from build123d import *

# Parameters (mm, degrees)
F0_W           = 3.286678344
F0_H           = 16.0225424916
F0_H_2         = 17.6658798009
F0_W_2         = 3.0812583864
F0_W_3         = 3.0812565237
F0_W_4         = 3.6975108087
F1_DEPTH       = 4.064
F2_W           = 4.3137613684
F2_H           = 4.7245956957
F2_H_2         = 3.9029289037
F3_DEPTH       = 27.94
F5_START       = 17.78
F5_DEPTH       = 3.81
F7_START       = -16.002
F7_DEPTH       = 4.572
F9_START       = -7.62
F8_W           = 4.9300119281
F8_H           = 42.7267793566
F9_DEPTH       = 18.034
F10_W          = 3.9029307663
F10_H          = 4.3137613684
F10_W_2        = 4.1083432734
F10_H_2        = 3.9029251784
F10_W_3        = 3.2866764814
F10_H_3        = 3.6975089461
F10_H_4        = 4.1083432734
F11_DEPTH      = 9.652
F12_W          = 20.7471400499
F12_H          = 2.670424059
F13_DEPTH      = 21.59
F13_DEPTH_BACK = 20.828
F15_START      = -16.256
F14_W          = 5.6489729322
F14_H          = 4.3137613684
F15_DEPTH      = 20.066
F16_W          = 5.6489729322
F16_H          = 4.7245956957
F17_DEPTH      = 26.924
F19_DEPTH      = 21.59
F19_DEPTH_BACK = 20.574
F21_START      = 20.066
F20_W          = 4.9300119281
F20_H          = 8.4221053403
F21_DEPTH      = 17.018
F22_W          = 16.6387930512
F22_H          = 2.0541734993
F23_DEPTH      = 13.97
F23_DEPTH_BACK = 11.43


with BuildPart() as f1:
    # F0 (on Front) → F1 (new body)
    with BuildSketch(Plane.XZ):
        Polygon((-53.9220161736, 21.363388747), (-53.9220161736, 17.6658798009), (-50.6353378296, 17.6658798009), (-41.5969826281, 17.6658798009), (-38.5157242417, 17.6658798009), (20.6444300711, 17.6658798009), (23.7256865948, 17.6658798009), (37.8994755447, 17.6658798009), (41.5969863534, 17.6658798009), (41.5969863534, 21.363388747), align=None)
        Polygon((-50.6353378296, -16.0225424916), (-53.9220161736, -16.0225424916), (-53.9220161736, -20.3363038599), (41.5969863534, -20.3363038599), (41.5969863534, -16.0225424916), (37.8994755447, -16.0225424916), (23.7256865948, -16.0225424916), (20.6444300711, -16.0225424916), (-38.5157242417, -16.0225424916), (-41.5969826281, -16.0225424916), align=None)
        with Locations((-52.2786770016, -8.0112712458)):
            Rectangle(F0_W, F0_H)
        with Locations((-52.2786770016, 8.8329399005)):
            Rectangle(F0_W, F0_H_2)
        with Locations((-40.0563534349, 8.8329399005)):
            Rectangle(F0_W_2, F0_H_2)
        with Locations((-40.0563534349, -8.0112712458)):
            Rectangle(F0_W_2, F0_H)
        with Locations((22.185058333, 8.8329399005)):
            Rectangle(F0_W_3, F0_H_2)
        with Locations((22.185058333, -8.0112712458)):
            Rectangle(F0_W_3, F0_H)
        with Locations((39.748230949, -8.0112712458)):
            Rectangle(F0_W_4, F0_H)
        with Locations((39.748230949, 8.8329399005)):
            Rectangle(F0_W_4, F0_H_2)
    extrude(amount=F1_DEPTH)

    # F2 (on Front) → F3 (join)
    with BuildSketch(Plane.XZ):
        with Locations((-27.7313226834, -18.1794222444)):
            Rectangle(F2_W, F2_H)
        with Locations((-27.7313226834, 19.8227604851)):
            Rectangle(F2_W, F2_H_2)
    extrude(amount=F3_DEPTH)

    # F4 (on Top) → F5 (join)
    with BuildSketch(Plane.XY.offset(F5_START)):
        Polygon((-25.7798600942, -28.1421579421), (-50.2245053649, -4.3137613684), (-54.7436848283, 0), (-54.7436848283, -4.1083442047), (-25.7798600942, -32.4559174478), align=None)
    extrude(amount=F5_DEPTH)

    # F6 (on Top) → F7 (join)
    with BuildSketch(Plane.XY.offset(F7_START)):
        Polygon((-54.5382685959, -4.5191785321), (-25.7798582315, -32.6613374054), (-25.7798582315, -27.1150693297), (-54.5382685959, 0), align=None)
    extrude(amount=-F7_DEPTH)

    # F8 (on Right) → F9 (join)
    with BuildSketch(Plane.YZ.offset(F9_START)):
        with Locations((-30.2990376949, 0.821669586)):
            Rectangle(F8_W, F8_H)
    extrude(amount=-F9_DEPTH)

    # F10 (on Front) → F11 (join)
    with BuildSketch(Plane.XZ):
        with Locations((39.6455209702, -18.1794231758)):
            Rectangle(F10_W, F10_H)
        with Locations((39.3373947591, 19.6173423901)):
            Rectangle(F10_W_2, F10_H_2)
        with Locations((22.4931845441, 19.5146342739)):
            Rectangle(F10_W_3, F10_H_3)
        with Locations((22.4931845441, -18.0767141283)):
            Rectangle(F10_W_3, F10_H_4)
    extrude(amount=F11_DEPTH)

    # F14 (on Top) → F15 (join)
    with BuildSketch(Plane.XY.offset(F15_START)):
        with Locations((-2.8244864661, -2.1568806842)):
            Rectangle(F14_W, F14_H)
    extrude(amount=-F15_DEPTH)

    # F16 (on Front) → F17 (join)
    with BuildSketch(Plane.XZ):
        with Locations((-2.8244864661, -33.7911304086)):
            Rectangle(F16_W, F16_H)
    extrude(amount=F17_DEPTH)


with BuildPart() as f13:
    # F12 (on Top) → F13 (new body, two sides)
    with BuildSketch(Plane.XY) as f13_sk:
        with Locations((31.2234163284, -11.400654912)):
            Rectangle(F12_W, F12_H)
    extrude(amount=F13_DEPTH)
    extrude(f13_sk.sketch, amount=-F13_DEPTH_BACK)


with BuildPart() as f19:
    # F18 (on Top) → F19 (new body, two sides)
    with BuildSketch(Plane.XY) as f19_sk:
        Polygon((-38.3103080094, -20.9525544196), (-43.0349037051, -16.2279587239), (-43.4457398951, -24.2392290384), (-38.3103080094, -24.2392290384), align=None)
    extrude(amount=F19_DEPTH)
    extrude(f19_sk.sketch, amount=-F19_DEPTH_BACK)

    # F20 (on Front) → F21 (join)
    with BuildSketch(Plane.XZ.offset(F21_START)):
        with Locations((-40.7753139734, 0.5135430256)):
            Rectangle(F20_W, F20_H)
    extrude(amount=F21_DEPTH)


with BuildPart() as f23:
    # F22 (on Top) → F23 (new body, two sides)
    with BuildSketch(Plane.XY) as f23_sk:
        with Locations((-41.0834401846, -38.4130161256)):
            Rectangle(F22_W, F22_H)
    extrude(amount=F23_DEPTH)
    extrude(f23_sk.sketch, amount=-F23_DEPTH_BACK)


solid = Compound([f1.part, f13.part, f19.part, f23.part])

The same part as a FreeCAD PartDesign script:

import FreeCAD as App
import Part
import Sketcher
Q = App.Units.Quantity

doc = App.newDocument("Part")
body = doc.addObject("PartDesign::Body", "Body")

sketch1 = body.newObject("Sketcher::SketchObject", "Sketch")
sketch1.AttachmentSupport = (doc.getObject("XZ_Plane"), [""])
sketch1.MapMode = "FlatFace"
sketch1.addGeometry([
    Part.LineSegment(App.Vector(-53.9, 21.4, 0), App.Vector(-53.9, -20.3, 0)),
    Part.LineSegment(App.Vector(-53.9, -20.3, 0), App.Vector(41.6, -20.3, 0)),
    Part.LineSegment(App.Vector(41.6, -20.3, 0), App.Vector(41.6, -16, 0)),
    Part.LineSegment(App.Vector(41.6, -16, 0), App.Vector(41.6, 17.7, 0)),
    Part.LineSegment(App.Vector(41.6, 17.7, 0), App.Vector(41.6, 21.4, 0)),
    Part.LineSegment(App.Vector(41.6, 21.4, 0), App.Vector(-53.9, 21.4, 0)),
    Part.LineSegment(App.Vector(37.9, -16, 0), App.Vector(23.7, -16, 0)),
    Part.LineSegment(App.Vector(23.7, -16, 0), App.Vector(23.7, 17.7, 0)),
    Part.LineSegment(App.Vector(23.7, 17.7, 0), App.Vector(37.9, 17.7, 0)),
    Part.LineSegment(App.Vector(37.9, 17.7, 0), App.Vector(37.9, -16, 0)),
    Part.LineSegment(App.Vector(20.6, -16, 0), App.Vector(-38.5, -16, 0)),
    Part.LineSegment(App.Vector(-38.5, -16, 0), App.Vector(-38.5, 17.7, 0)),
    Part.LineSegment(App.Vector(-38.5, 17.7, 0), App.Vector(20.6, 17.7, 0)),
    Part.LineSegment(App.Vector(20.6, 17.7, 0), App.Vector(20.6, -16, 0)),
    Part.LineSegment(App.Vector(-41.6, -16, 0), App.Vector(-50.6, -16, 0)),
    Part.LineSegment(App.Vector(-50.6, -16, 0), App.Vector(-50.6, 17.7, 0)),
    Part.LineSegment(App.Vector(-50.6, 17.7, 0), App.Vector(-41.6, 17.7, 0)),
    Part.LineSegment(App.Vector(-41.6, 17.7, 0), App.Vector(-41.6, -16, 0)),
], False)
sketch1.addConstraint([
    Sketcher.Constraint("Coincident", 0, 2, 1, 1),
    Sketcher.Constraint("Coincident", 1, 2, 2, 1),
    Sketcher.Constraint("Coincident", 2, 2, 3, 1),
    Sketcher.Constraint("Coincident", 3, 2, 4, 1),
    Sketcher.Constraint("Coincident", 4, 2, 5, 1),
    Sketcher.Constraint("Coincident", 5, 2, 0, 1),
    Sketcher.Constraint("Coincident", 6, 2, 7, 1),
    Sketcher.Constraint("Coincident", 7, 2, 8, 1),
    Sketcher.Constraint("Coincident", 8, 2, 9, 1),
    Sketcher.Constraint("Coincident", 9, 2, 6, 1),
    Sketcher.Constraint("Coincident", 10, 2, 11, 1),
    Sketcher.Constraint("Coincident", 11, 2, 12, 1),
    Sketcher.Constraint("Coincident", 12, 2, 13, 1),
    Sketcher.Constraint("Coincident", 13, 2, 10, 1),
    Sketcher.Constraint("Coincident", 14, 2, 15, 1),
    Sketcher.Constraint("Coincident", 15, 2, 16, 1),
    Sketcher.Constraint("Coincident", 16, 2, 17, 1),
    Sketcher.Constraint("Coincident", 17, 2, 14, 1),
    Sketcher.Constraint("Vertical", 0),
    Sketcher.Constraint("Horizontal", 1),
    Sketcher.Constraint("Vertical", 2),
    Sketcher.Constraint("Vertical", 3),
    Sketcher.Constraint("Vertical", 4),
    Sketcher.Constraint("Horizontal", 5),
    Sketcher.Constraint("Horizontal", 6),
    Sketcher.Constraint("Vertical", 7),
    Sketcher.Constraint("Horizontal", 8),
    Sketcher.Constraint("Vertical", 9),
    Sketcher.Constraint("Horizontal", 10),
    Sketcher.Constraint("Vertical", 11),
    Sketcher.Constraint("Horizontal", 12),
    Sketcher.Constraint("Vertical", 13),
    Sketcher.Constraint("Horizontal", 14),
    Sketcher.Constraint("Vertical", 15),
    Sketcher.Constraint("Horizontal", 16),
    Sketcher.Constraint("Vertical", 17),
    Sketcher.Constraint("Symmetric", 3, 2, 16, 2, -2),
    Sketcher.Constraint("Horizontal", 2, 2, 6, 2),
    Sketcher.Constraint("Horizontal", 3, 2, 7, 2),
    Sketcher.Constraint("Horizontal", 9, 2, 10, 2),
    Sketcher.Constraint("Horizontal", 8, 2, 11, 2),
    Sketcher.Constraint("Horizontal", 13, 2, 14, 2),
    Sketcher.Constraint("DistanceX", 6, 2, 6, 1, Q("14.173789 mm")),
    Sketcher.Constraint("DistanceY", 2, 1, 2, 2, Q("4.313761 mm")),
    Sketcher.Constraint("DistanceY", 4, 1, 4, 2, Q("3.697509 mm")),
    Sketcher.Constraint("DistanceX", 6, 2, 2, 2, Q("17.8713 mm")),
    Sketcher.Constraint("DistanceX", 10, 2, 9, 2, Q("76.4152 mm")),
    Sketcher.Constraint("DistanceX", 1, 1, 1, 2, Q("95.519003 mm")),
    Sketcher.Constraint("DistanceX", 10, 2, 10, 1, Q("59.160154 mm")),
    Sketcher.Constraint("DistanceX", 14, 2, 14, 1, Q("9.038355 mm")),
    Sketcher.Constraint("DistanceY", 0, 2, 0, 1, Q("41.699693 mm")),
    Sketcher.Constraint("DistanceY", -1, 1, 3, 2, Q("17.66588 mm")),
    Sketcher.Constraint("DistanceX", -1, 1, 12, 2, Q("20.64443 mm")),
])
pad1 = body.newObject("PartDesign::Pad", "Pad")
pad1.Profile = sketch1
pad1.Length = Q("0.16 in")

sketch2 = body.newObject("Sketcher::SketchObject", "Sketch001")
sketch2.AttachmentSupport = (doc.getObject("XZ_Plane"), [""])
sketch2.MapMode = "FlatFace"
sketch2.addGeometry([
    Part.LineSegment(App.Vector(-29.9, -15.8, 0), App.Vector(-29.9, -20.5, 0)),
    Part.LineSegment(App.Vector(-29.9, -20.5, 0), App.Vector(-25.6, -20.5, 0)),
    Part.LineSegment(App.Vector(-25.6, -20.5, 0), App.Vector(-25.6, -15.8, 0)),
    Part.LineSegment(App.Vector(-25.6, -15.8, 0), App.Vector(-29.9, -15.8, 0)),
    Part.LineSegment(App.Vector(-29.9, 21.8, 0), App.Vector(-29.9, 17.9, 0)),
    Part.LineSegment(App.Vector(-29.9, 17.9, 0), App.Vector(-25.6, 17.9, 0)),
    Part.LineSegment(App.Vector(-25.6, 17.9, 0), App.Vector(-25.6, 21.8, 0)),
    Part.LineSegment(App.Vector(-25.6, 21.8, 0), App.Vector(-29.9, 21.8, 0)),
], False)
sketch2.addConstraint([
    Sketcher.Constraint("Coincident", 0, 2, 1, 1),
    Sketcher.Constraint("Coincident", 1, 2, 2, 1),
    Sketcher.Constraint("Coincident", 2, 2, 3, 1),
    Sketcher.Constraint("Coincident", 3, 2, 0, 1),
    Sketcher.Constraint("Coincident", 4, 2, 5, 1),
    Sketcher.Constraint("Coincident", 5, 2, 6, 1),
    Sketcher.Constraint("Coincident", 6, 2, 7, 1),
    Sketcher.Constraint("Coincident", 7, 2, 4, 1),
    Sketcher.Constraint("Vertical", 0),
    Sketcher.Constraint("Horizontal", 1),
    Sketcher.Constraint("Vertical", 2),
    Sketcher.Constraint("Horizontal", 3),
    Sketcher.Constraint("Vertical", 4),
    Sketcher.Constraint("Horizontal", 5),
    Sketcher.Constraint("Vertical", 6),
    Sketcher.Constraint("Horizontal", 7),
    Sketcher.Constraint("Vertical", 3, 2, 4, 2),
    Sketcher.Constraint("Vertical", 2, 2, 5, 2),
    Sketcher.Constraint("DistanceX", 1, 1, 1, 2, Q("4.313761 mm")),
    Sketcher.Constraint("DistanceY", 4, 2, 4, 1, Q("3.902929 mm")),
    Sketcher.Constraint("DistanceY", 0, 2, 0, 1, Q("4.724596 mm")),
    Sketcher.Constraint("DistanceY", 0, 2, -1, 1, Q("20.54172 mm")),
    Sketcher.Constraint("DistanceX", 1, 2, -1, 1, Q("25.574442 mm")),
    Sketcher.Constraint("DistanceY", 3, 2, 4, 2, Q("33.68842 mm")),
])
pad2 = body.newObject("PartDesign::Pad", "Pad001")
pad2.Profile = sketch2
pad2.Length = Q("1.1 in")

sketch3 = body.newObject("Sketcher::SketchObject", "Sketch002")
sketch3.AttachmentSupport = (doc.getObject("XY_Plane"), [""])
sketch3.MapMode = "FlatFace"
sketch3.AttachmentOffset = App.Placement(App.Vector(0, 0, 0.7 * 25.4), App.Rotation())
sketch3.addGeometry([
    Part.LineSegment(App.Vector(-25.8, -28.1, 0), App.Vector(-50.2, -4.3, 0)),
    Part.LineSegment(App.Vector(-50.2, -4.3, 0), App.Vector(-54.7, 0, 0)),
    Part.LineSegment(App.Vector(-54.7, 0, 0), App.Vector(-54.7, -4.1, 0)),
    Part.LineSegment(App.Vector(-54.7, -4.1, 0), App.Vector(-25.8, -32.5, 0)),
    Part.LineSegment(App.Vector(-25.8, -32.5, 0), App.Vector(-25.8, -28.1, 0)),
], False)
sketch3.addConstraint([
    Sketcher.Constraint("Coincident", 0, 2, 1, 1),
    Sketcher.Constraint("Coincident", 1, 2, 2, 1),
    Sketcher.Constraint("Coincident", 2, 2, 3, 1),
    Sketcher.Constraint("Coincident", 3, 2, 4, 1),
    Sketcher.Constraint("Coincident", 4, 2, 0, 1),
    Sketcher.Constraint("Vertical", 2),
    Sketcher.Constraint("Vertical", 4),
    Sketcher.Constraint("PointOnObject", 1, 2, -1),
    Sketcher.Constraint("DistanceY", 4, 1, 4, 2, Q("4.31376 mm")),
    Sketcher.Constraint("Distance", 1, Q("6.247521 mm")),
    Sketcher.Constraint("Distance", 3, Q("40.527621 mm")),
    Sketcher.Constraint("DistanceY", 2, 2, 2, 1, Q("4.108344 mm")),
    Sketcher.Constraint("DistanceY", 0, 2, -1, 1, Q("4.313761 mm")),
    Sketcher.Constraint("DistanceX", 3, 2, -1, 1, Q("25.77986 mm")),
    Sketcher.Constraint("DistanceX", 0, 2, -1, 1, Q("50.224505 mm")),
])
pad3 = body.newObject("PartDesign::Pad", "Pad002")
pad3.Profile = sketch3
pad3.Length = Q("0.15 in")

sketch4 = body.newObject("Sketcher::SketchObject", "Sketch003")
sketch4.AttachmentSupport = (doc.getObject("XY_Plane"), [""])
sketch4.MapMode = "FlatFace"
sketch4.AttachmentOffset = App.Placement(App.Vector(0, 0, -0.63 * 25.4), App.Rotation())
sketch4.addGeometry([
    Part.LineSegment(App.Vector(-54.5, -4.5, 0), App.Vector(-25.8, -32.7, 0)),
    Part.LineSegment(App.Vector(-25.8, -32.7, 0), App.Vector(-25.8, -27.1, 0)),
    Part.LineSegment(App.Vector(-25.8, -27.1, 0), App.Vector(-54.5, 0, 0)),
    Part.LineSegment(App.Vector(-54.5, 0, 0), App.Vector(-54.5, -4.5, 0)),
], False)
sketch4.addConstraint([
    Sketcher.Constraint("Coincident", 0, 2, 1, 1),
    Sketcher.Constraint("Coincident", 1, 2, 2, 1),
    Sketcher.Constraint("Coincident", 2, 2, 3, 1),
    Sketcher.Constraint("Coincident", 3, 2, 0, 1),
    Sketcher.Constraint("Vertical", 1),
    Sketcher.Constraint("Vertical", 3),
    Sketcher.Constraint("PointOnObject", 2, 2, -1),
    Sketcher.Constraint("Distance", 2, Q("39.525601 mm")),
    Sketcher.Constraint("DistanceY", 1, 1, 1, 2, Q("5.546268 mm")),
    Sketcher.Constraint("DistanceY", 3, 2, 3, 1, Q("4.519179 mm")),
    Sketcher.Constraint("DistanceX", 0, 2, -1, 1, Q("25.779858 mm")),
    Sketcher.Constraint("DistanceY", 1, 2, -1, 1, Q("27.115069 mm")),
])
pad4 = body.newObject("PartDesign::Pad", "Pad003")
pad4.Profile = sketch4
pad4.Length = Q("0.18 in")
pad4.Reversed = True

sketch5 = body.newObject("Sketcher::SketchObject", "Sketch004")
sketch5.AttachmentSupport = (doc.getObject("YZ_Plane"), [""])
sketch5.MapMode = "FlatFace"
sketch5.AttachmentOffset = App.Placement(App.Vector(0, 0, -0.3 * 25.4), App.Rotation())
sketch5.addGeometry([
    Part.LineSegment(App.Vector(-32.8, 22.2, 0), App.Vector(-32.8, -20.5, 0)),
    Part.LineSegment(App.Vector(-32.8, -20.5, 0), App.Vector(-27.8, -20.5, 0)),
    Part.LineSegment(App.Vector(-27.8, -20.5, 0), App.Vector(-27.8, 22.2, 0)),
    Part.LineSegment(App.Vector(-27.8, 22.2, 0), App.Vector(-32.8, 22.2, 0)),
], False)
sketch5.addConstraint([
    Sketcher.Constraint("Coincident", 0, 2, 1, 1),
    Sketcher.Constraint("Coincident", 1, 2, 2, 1),
    Sketcher.Constraint("Coincident", 2, 2, 3, 1),
    Sketcher.Constraint("Coincident", 3, 2, 0, 1),
    Sketcher.Constraint("Vertical", 0),
    Sketcher.Constraint("Horizontal", 1),
    Sketcher.Constraint("Vertical", 2),
    Sketcher.Constraint("Horizontal", 3),
    Sketcher.Constraint("DistanceX", 1, 1, 1, 2, Q("4.930012 mm")),
    Sketcher.Constraint("DistanceY", 0, 2, 0, 1, Q("42.726779 mm")),
    Sketcher.Constraint("DistanceY", 0, 2, -1, 1, Q("20.54172 mm")),
    Sketcher.Constraint("DistanceX", 1, 2, -1, 1, Q("27.834032 mm")),
])
pad5 = body.newObject("PartDesign::Pad", "Pad004")
pad5.Profile = sketch5
pad5.Length = Q("0.71 in")
pad5.Reversed = True

sketch6 = body.newObject("Sketcher::SketchObject", "Sketch005")
sketch6.AttachmentSupport = (doc.getObject("XZ_Plane"), [""])
sketch6.MapMode = "FlatFace"
sketch6.addGeometry([
    Part.LineSegment(App.Vector(37.7, -16, 0), App.Vector(37.7, -20.3, 0)),
    Part.LineSegment(App.Vector(37.7, -20.3, 0), App.Vector(41.6, -20.3, 0)),
    Part.LineSegment(App.Vector(41.6, -20.3, 0), App.Vector(41.6, -16, 0)),
    Part.LineSegment(App.Vector(41.6, -16, 0), App.Vector(37.7, -16, 0)),
    Part.LineSegment(App.Vector(37.3, 21.6, 0), App.Vector(37.3, 17.7, 0)),
    Part.LineSegment(App.Vector(37.3, 17.7, 0), App.Vector(41.4, 17.7, 0)),
    Part.LineSegment(App.Vector(41.4, 17.7, 0), App.Vector(41.4, 21.6, 0)),
    Part.LineSegment(App.Vector(41.4, 21.6, 0), App.Vector(37.3, 21.6, 0)),
    Part.LineSegment(App.Vector(20.8, 21.4, 0), App.Vector(20.8, 17.7, 0)),
    Part.LineSegment(App.Vector(20.8, 17.7, 0), App.Vector(24.1, 17.7, 0)),
    Part.LineSegment(App.Vector(24.1, 17.7, 0), App.Vector(24.1, 21.4, 0)),
    Part.LineSegment(App.Vector(24.1, 21.4, 0), App.Vector(20.8, 21.4, 0)),
    Part.LineSegment(App.Vector(20.8, -16, 0), App.Vector(20.8, -20.1, 0)),
    Part.LineSegment(App.Vector(20.8, -20.1, 0), App.Vector(24.1, -20.1, 0)),
    Part.LineSegment(App.Vector(24.1, -20.1, 0), App.Vector(24.1, -16, 0)),
    Part.LineSegment(App.Vector(24.1, -16, 0), App.Vector(20.8, -16, 0)),
], False)
sketch6.addConstraint([
    Sketcher.Constraint("Coincident", 0, 2, 1, 1),
    Sketcher.Constraint("Coincident", 1, 2, 2, 1),
    Sketcher.Constraint("Coincident", 2, 2, 3, 1),
    Sketcher.Constraint("Coincident", 3, 2, 0, 1),
    Sketcher.Constraint("Coincident", 4, 2, 5, 1),
    Sketcher.Constraint("Coincident", 5, 2, 6, 1),
    Sketcher.Constraint("Coincident", 6, 2, 7, 1),
    Sketcher.Constraint("Coincident", 7, 2, 4, 1),
    Sketcher.Constraint("Coincident", 8, 2, 9, 1),
    Sketcher.Constraint("Coincident", 9, 2, 10, 1),
    Sketcher.Constraint("Coincident", 10, 2, 11, 1),
    Sketcher.Constraint("Coincident", 11, 2, 8, 1),
    Sketcher.Constraint("Coincident", 12, 2, 13, 1),
    Sketcher.Constraint("Coincident", 13, 2, 14, 1),
    Sketcher.Constraint("Coincident", 14, 2, 15, 1),
    Sketcher.Constraint("Coincident", 15, 2, 12, 1),
    Sketcher.Constraint("Vertical", 0),
    Sketcher.Constraint("Horizontal", 1),
    Sketcher.Constraint("Vertical", 2),
    Sketcher.Constraint("Horizontal", 3),
    Sketcher.Constraint("Vertical", 4),
    Sketcher.Constraint("Horizontal", 5),
    Sketcher.Constraint("Vertical", 6),
    Sketcher.Constraint("Horizontal", 7),
    Sketcher.Constraint("Vertical", 8),
    Sketcher.Constraint("Horizontal", 9),
    Sketcher.Constraint("Vertical", 10),
    Sketcher.Constraint("Horizontal", 11),
    Sketcher.Constraint("Vertical", 12),
    Sketcher.Constraint("Horizontal", 13),
    Sketcher.Constraint("Vertical", 14),
    Sketcher.Constraint("Horizontal", 15),
    Sketcher.Constraint("Horizontal", 5, 2, 8, 2),
    Sketcher.Constraint("Horizontal", 3, 2, 14, 2),
    Sketcher.Constraint("Vertical", 11, 2, 12, 2),
    Sketcher.Constraint("Vertical", 10, 2, 13, 2),
    Sketcher.Constraint("Equal", 7, 12),
    Sketcher.Constraint("DistanceX", 1, 1, 1, 2, Q("3.902931 mm")),
    Sketcher.Constraint("DistanceY", 0, 2, 0, 1, Q("4.313761 mm")),
    Sketcher.Constraint("DistanceY", 8, 2, 8, 1, Q("3.697509 mm")),
    Sketcher.Constraint("DistanceX", 9, 2, 4, 2, Q("13.1467 mm")),
    Sketcher.Constraint("DistanceX", 5, 1, 5, 2, Q("4.108343 mm")),
    Sketcher.Constraint("DistanceX", 9, 1, 9, 2, Q("3.286676 mm")),
    Sketcher.Constraint("DistanceY", 4, 2, 4, 1, Q("3.902925 mm")),
    Sketcher.Constraint("DistanceY", -1, 1, 4, 2, Q("17.66588 mm")),
    Sketcher.Constraint("DistanceX", 5, 2, 2, 2, Q("0.20542 mm")),
    Sketcher.Constraint("DistanceY", 1, 2, 6, 2, Q("41.905109 mm")),
    Sketcher.Constraint("DistanceX", -1, 1, 0, 2, Q("37.694056 mm")),
])
pad6 = body.newObject("PartDesign::Pad", "Pad005")
pad6.Profile = sketch6
pad6.Length = Q("0.38 in")

sketch7 = body.newObject("Sketcher::SketchObject", "Sketch006")
sketch7.AttachmentSupport = (doc.getObject("XY_Plane"), [""])
sketch7.MapMode = "FlatFace"
sketch7.AttachmentOffset = App.Placement(App.Vector(0, 0, -0.64 * 25.4), App.Rotation())
sketch7.addGeometry([
    Part.LineSegment(App.Vector(-5.6, 0, 0), App.Vector(-5.6, -4.3, 0)),
    Part.LineSegment(App.Vector(-5.6, -4.3, 0), App.Vector(0, -4.3, 0)),
    Part.LineSegment(App.Vector(0, -4.3, 0), App.Vector(0, 0, 0)),
    Part.LineSegment(App.Vector(0, 0, 0), App.Vector(-5.6, 0, 0)),
], False)
sketch7.addConstraint([
    Sketcher.Constraint("Coincident", 0, 2, 1, 1),
    Sketcher.Constraint("Coincident", 1, 2, 2, 1),
    Sketcher.Constraint("Coincident", 2, 2, 3, 1),
    Sketcher.Constraint("Coincident", 3, 2, 0, 1),
    Sketcher.Constraint("Vertical", 0),
    Sketcher.Constraint("Horizontal", 1),
    Sketcher.Constraint("Vertical", 2),
    Sketcher.Constraint("Horizontal", 3),
    Sketcher.Constraint("Coincident", 2, 2, -1, 1),
    Sketcher.Constraint("DistanceY", 0, 2, 0, 1, Q("4.313761 mm")),
    Sketcher.Constraint("DistanceX", 1, 1, 1, 2, Q("5.648973 mm")),
])
pad7 = body.newObject("PartDesign::Pad", "Pad006")
pad7.Profile = sketch7
pad7.Length = Q("0.79 in")
pad7.Reversed = True

sketch8 = body.newObject("Sketcher::SketchObject", "Sketch007")
sketch8.AttachmentSupport = (doc.getObject("XZ_Plane"), [""])
sketch8.MapMode = "FlatFace"
sketch8.addGeometry([
    Part.LineSegment(App.Vector(-5.6, -31.4, 0), App.Vector(-5.6, -36.2, 0)),
    Part.LineSegment(App.Vector(-5.6, -36.2, 0), App.Vector(0, -36.2, 0)),
    Part.LineSegment(App.Vector(0, -36.2, 0), App.Vector(0, -31.4, 0)),
    Part.LineSegment(App.Vector(0, -31.4, 0), App.Vector(-5.6, -31.4, 0)),
], False)
sketch8.addConstraint([
    Sketcher.Constraint("Coincident", 0, 2, 1, 1),
    Sketcher.Constraint("Coincident", 1, 2, 2, 1),
    Sketcher.Constraint("Coincident", 2, 2, 3, 1),
    Sketcher.Constraint("Coincident", 3, 2, 0, 1),
    Sketcher.Constraint("Vertical", 0),
    Sketcher.Constraint("Horizontal", 1),
    Sketcher.Constraint("Vertical", 2),
    Sketcher.Constraint("Horizontal", 3),
    Sketcher.Constraint("PointOnObject", 1, 2, -2),
    Sketcher.Constraint("DistanceX", 1, 1, 1, 2, Q("5.648973 mm")),
    Sketcher.Constraint("DistanceY", 0, 2, 0, 1, Q("4.724596 mm")),
    Sketcher.Constraint("DistanceY", 0, 2, -1, 1, Q("36.153428 mm")),
])
pad8 = body.newObject("PartDesign::Pad", "Pad007")
pad8.Profile = sketch8
pad8.Length = Q("1.06 in")
body2 = doc.addObject("PartDesign::Body", "Body001")

sketch9 = body2.newObject("Sketcher::SketchObject", "Sketch008")
sketch9.AttachmentSupport = (doc.getObject("XY_Plane001"), [""])
sketch9.MapMode = "FlatFace"
sketch9.addGeometry([
    Part.LineSegment(App.Vector(20.8, -10.1, 0), App.Vector(20.8, -12.7, 0)),
    Part.LineSegment(App.Vector(20.8, -12.7, 0), App.Vector(41.6, -12.7, 0)),
    Part.LineSegment(App.Vector(41.6, -12.7, 0), App.Vector(41.6, -10.1, 0)),
    Part.LineSegment(App.Vector(41.6, -10.1, 0), App.Vector(20.8, -10.1, 0)),
], False)
sketch9.addConstraint([
    Sketcher.Constraint("Coincident", 0, 2, 1, 1),
    Sketcher.Constraint("Coincident", 1, 2, 2, 1),
    Sketcher.Constraint("Coincident", 2, 2, 3, 1),
    Sketcher.Constraint("Coincident", 3, 2, 0, 1),
    Sketcher.Constraint("Vertical", 0),
    Sketcher.Constraint("Horizontal", 1),
    Sketcher.Constraint("Vertical", 2),
    Sketcher.Constraint("Horizontal", 3),
    Sketcher.Constraint("DistanceX", 1, 1, 1, 2, Q("20.74714 mm")),
    Sketcher.Constraint("DistanceY", 0, 2, 0, 1, Q("2.670424 mm")),
    Sketcher.Constraint("DistanceX", -1, 1, 0, 2, Q("20.849846 mm")),
    Sketcher.Constraint("DistanceY", 0, 2, -1, 1, Q("12.735867 mm")),
])
pad9 = body2.newObject("PartDesign::Pad", "Pad008")
pad9.Profile = sketch9
pad9.Type = "TwoLengths"
pad9.Length = Q("0.85 in")
pad9.Length2 = Q("0.82 in")
body3 = doc.addObject("PartDesign::Body", "Body002")

sketch10 = body3.newObject("Sketcher::SketchObject", "Sketch009")
sketch10.AttachmentSupport = (doc.getObject("XY_Plane002"), [""])
sketch10.MapMode = "FlatFace"
sketch10.addGeometry([
    Part.LineSegment(App.Vector(-38.3, -21, 0), App.Vector(-43, -16.2, 0)),
    Part.LineSegment(App.Vector(-43, -16.2, 0), App.Vector(-43.4, -24.2, 0)),
    Part.LineSegment(App.Vector(-43.4, -24.2, 0), App.Vector(-38.3, -24.2, 0)),
    Part.LineSegment(App.Vector(-38.3, -24.2, 0), App.Vector(-38.3, -21, 0)),
], False)
sketch10.addConstraint([
    Sketcher.Constraint("Coincident", 0, 2, 1, 1),
    Sketcher.Constraint("Coincident", 1, 2, 2, 1),
    Sketcher.Constraint("Coincident", 2, 2, 3, 1),
    Sketcher.Constraint("Coincident", 3, 2, 0, 1),
    Sketcher.Constraint("Horizontal", 2),
    Sketcher.Constraint("Vertical", 3),
    Sketcher.Constraint("Angle", 0, Q("135 deg")),
    Sketcher.Constraint("DistanceX", 2, 1, 2, 2, Q("5.135432 mm")),
    Sketcher.Constraint("DistanceY", 3, 1, 3, 2, Q("3.286675 mm")),
    Sketcher.Constraint("DistanceY", 0, 2, -1, 1, Q("16.227959 mm")),
    Sketcher.Constraint("DistanceX", 1, 2, -1, 1, Q("43.44574 mm")),
    Sketcher.Constraint("DistanceY", 1, 2, -1, 1, Q("24.239229 mm")),
])
pad10 = body3.newObject("PartDesign::Pad", "Pad009")
pad10.Profile = sketch10
pad10.Type = "TwoLengths"
pad10.Length = Q("0.85 in")
pad10.Length2 = Q("0.81 in")

sketch11 = body3.newObject("Sketcher::SketchObject", "Sketch010")
sketch11.AttachmentSupport = (doc.getObject("XZ_Plane002"), [""])
sketch11.MapMode = "FlatFace"
sketch11.AttachmentOffset = App.Placement(App.Vector(0, 0, 0.79 * 25.4), App.Rotation())
sketch11.addGeometry([
    Part.LineSegment(App.Vector(-43.2, 4.7, 0), App.Vector(-43.2, -3.7, 0)),
    Part.LineSegment(App.Vector(-43.2, -3.7, 0), App.Vector(-38.3, -3.7, 0)),
    Part.LineSegment(App.Vector(-38.3, -3.7, 0), App.Vector(-38.3, 4.7, 0)),
    Part.LineSegment(App.Vector(-38.3, 4.7, 0), App.Vector(-43.2, 4.7, 0)),
], False)
sketch11.addConstraint([
    Sketcher.Constraint("Coincident", 0, 2, 1, 1),
    Sketcher.Constraint("Coincident", 1, 2, 2, 1),
    Sketcher.Constraint("Coincident", 2, 2, 3, 1),
    Sketcher.Constraint("Coincident", 3, 2, 0, 1),
    Sketcher.Constraint("Vertical", 0),
    Sketcher.Constraint("Horizontal", 1),
    Sketcher.Constraint("Vertical", 2),
    Sketcher.Constraint("Horizontal", 3),
    Sketcher.Constraint("DistanceX", 1, 1, 1, 2, Q("4.930012 mm")),
    Sketcher.Constraint("DistanceY", 0, 2, 0, 1, Q("8.422105 mm")),
    Sketcher.Constraint("DistanceX", 0, 2, -1, 1, Q("43.24032 mm")),
    Sketcher.Constraint("DistanceY", 0, 2, -1, 1, Q("3.69751 mm")),
])
pad11 = body3.newObject("PartDesign::Pad", "Pad010")
pad11.Profile = sketch11
pad11.Length = Q("0.67 in")
body4 = doc.addObject("PartDesign::Body", "Body003")

sketch12 = body4.newObject("Sketcher::SketchObject", "Sketch011")
sketch12.AttachmentSupport = (doc.getObject("XY_Plane003"), [""])
sketch12.MapMode = "FlatFace"
sketch12.addGeometry([
    Part.LineSegment(App.Vector(-49.4, -37.4, 0), App.Vector(-49.4, -39.4, 0)),
    Part.LineSegment(App.Vector(-49.4, -39.4, 0), App.Vector(-32.8, -39.4, 0)),
    Part.LineSegment(App.Vector(-32.8, -39.4, 0), App.Vector(-32.8, -37.4, 0)),
    Part.LineSegment(App.Vector(-32.8, -37.4, 0), App.Vector(-49.4, -37.4, 0)),
], False)
sketch12.addConstraint([
    Sketcher.Constraint("Coincident", 0, 2, 1, 1),
    Sketcher.Constraint("Coincident", 1, 2, 2, 1),
    Sketcher.Constraint("Coincident", 2, 2, 3, 1),
    Sketcher.Constraint("Coincident", 3, 2, 0, 1),
    Sketcher.Constraint("Vertical", 0),
    Sketcher.Constraint("Horizontal", 1),
    Sketcher.Constraint("Vertical", 2),
    Sketcher.Constraint("Horizontal", 3),
    Sketcher.Constraint("DistanceX", 1, 1, 1, 2, Q("16.638793 mm")),
    Sketcher.Constraint("DistanceY", 0, 2, 0, 1, Q("2.054173 mm")),
    Sketcher.Constraint("DistanceY", 2, 2, -1, 1, Q("37.385929 mm")),
    Sketcher.Constraint("DistanceX", 0, 2, -1, 1, Q("49.402837 mm")),
])
pad12 = body4.newObject("PartDesign::Pad", "Pad011")
pad12.Profile = sketch12
pad12.Type = "TwoLengths"
pad12.Length = Q("0.55 in")
pad12.Length2 = Q("0.45 in")

doc.recompute()
